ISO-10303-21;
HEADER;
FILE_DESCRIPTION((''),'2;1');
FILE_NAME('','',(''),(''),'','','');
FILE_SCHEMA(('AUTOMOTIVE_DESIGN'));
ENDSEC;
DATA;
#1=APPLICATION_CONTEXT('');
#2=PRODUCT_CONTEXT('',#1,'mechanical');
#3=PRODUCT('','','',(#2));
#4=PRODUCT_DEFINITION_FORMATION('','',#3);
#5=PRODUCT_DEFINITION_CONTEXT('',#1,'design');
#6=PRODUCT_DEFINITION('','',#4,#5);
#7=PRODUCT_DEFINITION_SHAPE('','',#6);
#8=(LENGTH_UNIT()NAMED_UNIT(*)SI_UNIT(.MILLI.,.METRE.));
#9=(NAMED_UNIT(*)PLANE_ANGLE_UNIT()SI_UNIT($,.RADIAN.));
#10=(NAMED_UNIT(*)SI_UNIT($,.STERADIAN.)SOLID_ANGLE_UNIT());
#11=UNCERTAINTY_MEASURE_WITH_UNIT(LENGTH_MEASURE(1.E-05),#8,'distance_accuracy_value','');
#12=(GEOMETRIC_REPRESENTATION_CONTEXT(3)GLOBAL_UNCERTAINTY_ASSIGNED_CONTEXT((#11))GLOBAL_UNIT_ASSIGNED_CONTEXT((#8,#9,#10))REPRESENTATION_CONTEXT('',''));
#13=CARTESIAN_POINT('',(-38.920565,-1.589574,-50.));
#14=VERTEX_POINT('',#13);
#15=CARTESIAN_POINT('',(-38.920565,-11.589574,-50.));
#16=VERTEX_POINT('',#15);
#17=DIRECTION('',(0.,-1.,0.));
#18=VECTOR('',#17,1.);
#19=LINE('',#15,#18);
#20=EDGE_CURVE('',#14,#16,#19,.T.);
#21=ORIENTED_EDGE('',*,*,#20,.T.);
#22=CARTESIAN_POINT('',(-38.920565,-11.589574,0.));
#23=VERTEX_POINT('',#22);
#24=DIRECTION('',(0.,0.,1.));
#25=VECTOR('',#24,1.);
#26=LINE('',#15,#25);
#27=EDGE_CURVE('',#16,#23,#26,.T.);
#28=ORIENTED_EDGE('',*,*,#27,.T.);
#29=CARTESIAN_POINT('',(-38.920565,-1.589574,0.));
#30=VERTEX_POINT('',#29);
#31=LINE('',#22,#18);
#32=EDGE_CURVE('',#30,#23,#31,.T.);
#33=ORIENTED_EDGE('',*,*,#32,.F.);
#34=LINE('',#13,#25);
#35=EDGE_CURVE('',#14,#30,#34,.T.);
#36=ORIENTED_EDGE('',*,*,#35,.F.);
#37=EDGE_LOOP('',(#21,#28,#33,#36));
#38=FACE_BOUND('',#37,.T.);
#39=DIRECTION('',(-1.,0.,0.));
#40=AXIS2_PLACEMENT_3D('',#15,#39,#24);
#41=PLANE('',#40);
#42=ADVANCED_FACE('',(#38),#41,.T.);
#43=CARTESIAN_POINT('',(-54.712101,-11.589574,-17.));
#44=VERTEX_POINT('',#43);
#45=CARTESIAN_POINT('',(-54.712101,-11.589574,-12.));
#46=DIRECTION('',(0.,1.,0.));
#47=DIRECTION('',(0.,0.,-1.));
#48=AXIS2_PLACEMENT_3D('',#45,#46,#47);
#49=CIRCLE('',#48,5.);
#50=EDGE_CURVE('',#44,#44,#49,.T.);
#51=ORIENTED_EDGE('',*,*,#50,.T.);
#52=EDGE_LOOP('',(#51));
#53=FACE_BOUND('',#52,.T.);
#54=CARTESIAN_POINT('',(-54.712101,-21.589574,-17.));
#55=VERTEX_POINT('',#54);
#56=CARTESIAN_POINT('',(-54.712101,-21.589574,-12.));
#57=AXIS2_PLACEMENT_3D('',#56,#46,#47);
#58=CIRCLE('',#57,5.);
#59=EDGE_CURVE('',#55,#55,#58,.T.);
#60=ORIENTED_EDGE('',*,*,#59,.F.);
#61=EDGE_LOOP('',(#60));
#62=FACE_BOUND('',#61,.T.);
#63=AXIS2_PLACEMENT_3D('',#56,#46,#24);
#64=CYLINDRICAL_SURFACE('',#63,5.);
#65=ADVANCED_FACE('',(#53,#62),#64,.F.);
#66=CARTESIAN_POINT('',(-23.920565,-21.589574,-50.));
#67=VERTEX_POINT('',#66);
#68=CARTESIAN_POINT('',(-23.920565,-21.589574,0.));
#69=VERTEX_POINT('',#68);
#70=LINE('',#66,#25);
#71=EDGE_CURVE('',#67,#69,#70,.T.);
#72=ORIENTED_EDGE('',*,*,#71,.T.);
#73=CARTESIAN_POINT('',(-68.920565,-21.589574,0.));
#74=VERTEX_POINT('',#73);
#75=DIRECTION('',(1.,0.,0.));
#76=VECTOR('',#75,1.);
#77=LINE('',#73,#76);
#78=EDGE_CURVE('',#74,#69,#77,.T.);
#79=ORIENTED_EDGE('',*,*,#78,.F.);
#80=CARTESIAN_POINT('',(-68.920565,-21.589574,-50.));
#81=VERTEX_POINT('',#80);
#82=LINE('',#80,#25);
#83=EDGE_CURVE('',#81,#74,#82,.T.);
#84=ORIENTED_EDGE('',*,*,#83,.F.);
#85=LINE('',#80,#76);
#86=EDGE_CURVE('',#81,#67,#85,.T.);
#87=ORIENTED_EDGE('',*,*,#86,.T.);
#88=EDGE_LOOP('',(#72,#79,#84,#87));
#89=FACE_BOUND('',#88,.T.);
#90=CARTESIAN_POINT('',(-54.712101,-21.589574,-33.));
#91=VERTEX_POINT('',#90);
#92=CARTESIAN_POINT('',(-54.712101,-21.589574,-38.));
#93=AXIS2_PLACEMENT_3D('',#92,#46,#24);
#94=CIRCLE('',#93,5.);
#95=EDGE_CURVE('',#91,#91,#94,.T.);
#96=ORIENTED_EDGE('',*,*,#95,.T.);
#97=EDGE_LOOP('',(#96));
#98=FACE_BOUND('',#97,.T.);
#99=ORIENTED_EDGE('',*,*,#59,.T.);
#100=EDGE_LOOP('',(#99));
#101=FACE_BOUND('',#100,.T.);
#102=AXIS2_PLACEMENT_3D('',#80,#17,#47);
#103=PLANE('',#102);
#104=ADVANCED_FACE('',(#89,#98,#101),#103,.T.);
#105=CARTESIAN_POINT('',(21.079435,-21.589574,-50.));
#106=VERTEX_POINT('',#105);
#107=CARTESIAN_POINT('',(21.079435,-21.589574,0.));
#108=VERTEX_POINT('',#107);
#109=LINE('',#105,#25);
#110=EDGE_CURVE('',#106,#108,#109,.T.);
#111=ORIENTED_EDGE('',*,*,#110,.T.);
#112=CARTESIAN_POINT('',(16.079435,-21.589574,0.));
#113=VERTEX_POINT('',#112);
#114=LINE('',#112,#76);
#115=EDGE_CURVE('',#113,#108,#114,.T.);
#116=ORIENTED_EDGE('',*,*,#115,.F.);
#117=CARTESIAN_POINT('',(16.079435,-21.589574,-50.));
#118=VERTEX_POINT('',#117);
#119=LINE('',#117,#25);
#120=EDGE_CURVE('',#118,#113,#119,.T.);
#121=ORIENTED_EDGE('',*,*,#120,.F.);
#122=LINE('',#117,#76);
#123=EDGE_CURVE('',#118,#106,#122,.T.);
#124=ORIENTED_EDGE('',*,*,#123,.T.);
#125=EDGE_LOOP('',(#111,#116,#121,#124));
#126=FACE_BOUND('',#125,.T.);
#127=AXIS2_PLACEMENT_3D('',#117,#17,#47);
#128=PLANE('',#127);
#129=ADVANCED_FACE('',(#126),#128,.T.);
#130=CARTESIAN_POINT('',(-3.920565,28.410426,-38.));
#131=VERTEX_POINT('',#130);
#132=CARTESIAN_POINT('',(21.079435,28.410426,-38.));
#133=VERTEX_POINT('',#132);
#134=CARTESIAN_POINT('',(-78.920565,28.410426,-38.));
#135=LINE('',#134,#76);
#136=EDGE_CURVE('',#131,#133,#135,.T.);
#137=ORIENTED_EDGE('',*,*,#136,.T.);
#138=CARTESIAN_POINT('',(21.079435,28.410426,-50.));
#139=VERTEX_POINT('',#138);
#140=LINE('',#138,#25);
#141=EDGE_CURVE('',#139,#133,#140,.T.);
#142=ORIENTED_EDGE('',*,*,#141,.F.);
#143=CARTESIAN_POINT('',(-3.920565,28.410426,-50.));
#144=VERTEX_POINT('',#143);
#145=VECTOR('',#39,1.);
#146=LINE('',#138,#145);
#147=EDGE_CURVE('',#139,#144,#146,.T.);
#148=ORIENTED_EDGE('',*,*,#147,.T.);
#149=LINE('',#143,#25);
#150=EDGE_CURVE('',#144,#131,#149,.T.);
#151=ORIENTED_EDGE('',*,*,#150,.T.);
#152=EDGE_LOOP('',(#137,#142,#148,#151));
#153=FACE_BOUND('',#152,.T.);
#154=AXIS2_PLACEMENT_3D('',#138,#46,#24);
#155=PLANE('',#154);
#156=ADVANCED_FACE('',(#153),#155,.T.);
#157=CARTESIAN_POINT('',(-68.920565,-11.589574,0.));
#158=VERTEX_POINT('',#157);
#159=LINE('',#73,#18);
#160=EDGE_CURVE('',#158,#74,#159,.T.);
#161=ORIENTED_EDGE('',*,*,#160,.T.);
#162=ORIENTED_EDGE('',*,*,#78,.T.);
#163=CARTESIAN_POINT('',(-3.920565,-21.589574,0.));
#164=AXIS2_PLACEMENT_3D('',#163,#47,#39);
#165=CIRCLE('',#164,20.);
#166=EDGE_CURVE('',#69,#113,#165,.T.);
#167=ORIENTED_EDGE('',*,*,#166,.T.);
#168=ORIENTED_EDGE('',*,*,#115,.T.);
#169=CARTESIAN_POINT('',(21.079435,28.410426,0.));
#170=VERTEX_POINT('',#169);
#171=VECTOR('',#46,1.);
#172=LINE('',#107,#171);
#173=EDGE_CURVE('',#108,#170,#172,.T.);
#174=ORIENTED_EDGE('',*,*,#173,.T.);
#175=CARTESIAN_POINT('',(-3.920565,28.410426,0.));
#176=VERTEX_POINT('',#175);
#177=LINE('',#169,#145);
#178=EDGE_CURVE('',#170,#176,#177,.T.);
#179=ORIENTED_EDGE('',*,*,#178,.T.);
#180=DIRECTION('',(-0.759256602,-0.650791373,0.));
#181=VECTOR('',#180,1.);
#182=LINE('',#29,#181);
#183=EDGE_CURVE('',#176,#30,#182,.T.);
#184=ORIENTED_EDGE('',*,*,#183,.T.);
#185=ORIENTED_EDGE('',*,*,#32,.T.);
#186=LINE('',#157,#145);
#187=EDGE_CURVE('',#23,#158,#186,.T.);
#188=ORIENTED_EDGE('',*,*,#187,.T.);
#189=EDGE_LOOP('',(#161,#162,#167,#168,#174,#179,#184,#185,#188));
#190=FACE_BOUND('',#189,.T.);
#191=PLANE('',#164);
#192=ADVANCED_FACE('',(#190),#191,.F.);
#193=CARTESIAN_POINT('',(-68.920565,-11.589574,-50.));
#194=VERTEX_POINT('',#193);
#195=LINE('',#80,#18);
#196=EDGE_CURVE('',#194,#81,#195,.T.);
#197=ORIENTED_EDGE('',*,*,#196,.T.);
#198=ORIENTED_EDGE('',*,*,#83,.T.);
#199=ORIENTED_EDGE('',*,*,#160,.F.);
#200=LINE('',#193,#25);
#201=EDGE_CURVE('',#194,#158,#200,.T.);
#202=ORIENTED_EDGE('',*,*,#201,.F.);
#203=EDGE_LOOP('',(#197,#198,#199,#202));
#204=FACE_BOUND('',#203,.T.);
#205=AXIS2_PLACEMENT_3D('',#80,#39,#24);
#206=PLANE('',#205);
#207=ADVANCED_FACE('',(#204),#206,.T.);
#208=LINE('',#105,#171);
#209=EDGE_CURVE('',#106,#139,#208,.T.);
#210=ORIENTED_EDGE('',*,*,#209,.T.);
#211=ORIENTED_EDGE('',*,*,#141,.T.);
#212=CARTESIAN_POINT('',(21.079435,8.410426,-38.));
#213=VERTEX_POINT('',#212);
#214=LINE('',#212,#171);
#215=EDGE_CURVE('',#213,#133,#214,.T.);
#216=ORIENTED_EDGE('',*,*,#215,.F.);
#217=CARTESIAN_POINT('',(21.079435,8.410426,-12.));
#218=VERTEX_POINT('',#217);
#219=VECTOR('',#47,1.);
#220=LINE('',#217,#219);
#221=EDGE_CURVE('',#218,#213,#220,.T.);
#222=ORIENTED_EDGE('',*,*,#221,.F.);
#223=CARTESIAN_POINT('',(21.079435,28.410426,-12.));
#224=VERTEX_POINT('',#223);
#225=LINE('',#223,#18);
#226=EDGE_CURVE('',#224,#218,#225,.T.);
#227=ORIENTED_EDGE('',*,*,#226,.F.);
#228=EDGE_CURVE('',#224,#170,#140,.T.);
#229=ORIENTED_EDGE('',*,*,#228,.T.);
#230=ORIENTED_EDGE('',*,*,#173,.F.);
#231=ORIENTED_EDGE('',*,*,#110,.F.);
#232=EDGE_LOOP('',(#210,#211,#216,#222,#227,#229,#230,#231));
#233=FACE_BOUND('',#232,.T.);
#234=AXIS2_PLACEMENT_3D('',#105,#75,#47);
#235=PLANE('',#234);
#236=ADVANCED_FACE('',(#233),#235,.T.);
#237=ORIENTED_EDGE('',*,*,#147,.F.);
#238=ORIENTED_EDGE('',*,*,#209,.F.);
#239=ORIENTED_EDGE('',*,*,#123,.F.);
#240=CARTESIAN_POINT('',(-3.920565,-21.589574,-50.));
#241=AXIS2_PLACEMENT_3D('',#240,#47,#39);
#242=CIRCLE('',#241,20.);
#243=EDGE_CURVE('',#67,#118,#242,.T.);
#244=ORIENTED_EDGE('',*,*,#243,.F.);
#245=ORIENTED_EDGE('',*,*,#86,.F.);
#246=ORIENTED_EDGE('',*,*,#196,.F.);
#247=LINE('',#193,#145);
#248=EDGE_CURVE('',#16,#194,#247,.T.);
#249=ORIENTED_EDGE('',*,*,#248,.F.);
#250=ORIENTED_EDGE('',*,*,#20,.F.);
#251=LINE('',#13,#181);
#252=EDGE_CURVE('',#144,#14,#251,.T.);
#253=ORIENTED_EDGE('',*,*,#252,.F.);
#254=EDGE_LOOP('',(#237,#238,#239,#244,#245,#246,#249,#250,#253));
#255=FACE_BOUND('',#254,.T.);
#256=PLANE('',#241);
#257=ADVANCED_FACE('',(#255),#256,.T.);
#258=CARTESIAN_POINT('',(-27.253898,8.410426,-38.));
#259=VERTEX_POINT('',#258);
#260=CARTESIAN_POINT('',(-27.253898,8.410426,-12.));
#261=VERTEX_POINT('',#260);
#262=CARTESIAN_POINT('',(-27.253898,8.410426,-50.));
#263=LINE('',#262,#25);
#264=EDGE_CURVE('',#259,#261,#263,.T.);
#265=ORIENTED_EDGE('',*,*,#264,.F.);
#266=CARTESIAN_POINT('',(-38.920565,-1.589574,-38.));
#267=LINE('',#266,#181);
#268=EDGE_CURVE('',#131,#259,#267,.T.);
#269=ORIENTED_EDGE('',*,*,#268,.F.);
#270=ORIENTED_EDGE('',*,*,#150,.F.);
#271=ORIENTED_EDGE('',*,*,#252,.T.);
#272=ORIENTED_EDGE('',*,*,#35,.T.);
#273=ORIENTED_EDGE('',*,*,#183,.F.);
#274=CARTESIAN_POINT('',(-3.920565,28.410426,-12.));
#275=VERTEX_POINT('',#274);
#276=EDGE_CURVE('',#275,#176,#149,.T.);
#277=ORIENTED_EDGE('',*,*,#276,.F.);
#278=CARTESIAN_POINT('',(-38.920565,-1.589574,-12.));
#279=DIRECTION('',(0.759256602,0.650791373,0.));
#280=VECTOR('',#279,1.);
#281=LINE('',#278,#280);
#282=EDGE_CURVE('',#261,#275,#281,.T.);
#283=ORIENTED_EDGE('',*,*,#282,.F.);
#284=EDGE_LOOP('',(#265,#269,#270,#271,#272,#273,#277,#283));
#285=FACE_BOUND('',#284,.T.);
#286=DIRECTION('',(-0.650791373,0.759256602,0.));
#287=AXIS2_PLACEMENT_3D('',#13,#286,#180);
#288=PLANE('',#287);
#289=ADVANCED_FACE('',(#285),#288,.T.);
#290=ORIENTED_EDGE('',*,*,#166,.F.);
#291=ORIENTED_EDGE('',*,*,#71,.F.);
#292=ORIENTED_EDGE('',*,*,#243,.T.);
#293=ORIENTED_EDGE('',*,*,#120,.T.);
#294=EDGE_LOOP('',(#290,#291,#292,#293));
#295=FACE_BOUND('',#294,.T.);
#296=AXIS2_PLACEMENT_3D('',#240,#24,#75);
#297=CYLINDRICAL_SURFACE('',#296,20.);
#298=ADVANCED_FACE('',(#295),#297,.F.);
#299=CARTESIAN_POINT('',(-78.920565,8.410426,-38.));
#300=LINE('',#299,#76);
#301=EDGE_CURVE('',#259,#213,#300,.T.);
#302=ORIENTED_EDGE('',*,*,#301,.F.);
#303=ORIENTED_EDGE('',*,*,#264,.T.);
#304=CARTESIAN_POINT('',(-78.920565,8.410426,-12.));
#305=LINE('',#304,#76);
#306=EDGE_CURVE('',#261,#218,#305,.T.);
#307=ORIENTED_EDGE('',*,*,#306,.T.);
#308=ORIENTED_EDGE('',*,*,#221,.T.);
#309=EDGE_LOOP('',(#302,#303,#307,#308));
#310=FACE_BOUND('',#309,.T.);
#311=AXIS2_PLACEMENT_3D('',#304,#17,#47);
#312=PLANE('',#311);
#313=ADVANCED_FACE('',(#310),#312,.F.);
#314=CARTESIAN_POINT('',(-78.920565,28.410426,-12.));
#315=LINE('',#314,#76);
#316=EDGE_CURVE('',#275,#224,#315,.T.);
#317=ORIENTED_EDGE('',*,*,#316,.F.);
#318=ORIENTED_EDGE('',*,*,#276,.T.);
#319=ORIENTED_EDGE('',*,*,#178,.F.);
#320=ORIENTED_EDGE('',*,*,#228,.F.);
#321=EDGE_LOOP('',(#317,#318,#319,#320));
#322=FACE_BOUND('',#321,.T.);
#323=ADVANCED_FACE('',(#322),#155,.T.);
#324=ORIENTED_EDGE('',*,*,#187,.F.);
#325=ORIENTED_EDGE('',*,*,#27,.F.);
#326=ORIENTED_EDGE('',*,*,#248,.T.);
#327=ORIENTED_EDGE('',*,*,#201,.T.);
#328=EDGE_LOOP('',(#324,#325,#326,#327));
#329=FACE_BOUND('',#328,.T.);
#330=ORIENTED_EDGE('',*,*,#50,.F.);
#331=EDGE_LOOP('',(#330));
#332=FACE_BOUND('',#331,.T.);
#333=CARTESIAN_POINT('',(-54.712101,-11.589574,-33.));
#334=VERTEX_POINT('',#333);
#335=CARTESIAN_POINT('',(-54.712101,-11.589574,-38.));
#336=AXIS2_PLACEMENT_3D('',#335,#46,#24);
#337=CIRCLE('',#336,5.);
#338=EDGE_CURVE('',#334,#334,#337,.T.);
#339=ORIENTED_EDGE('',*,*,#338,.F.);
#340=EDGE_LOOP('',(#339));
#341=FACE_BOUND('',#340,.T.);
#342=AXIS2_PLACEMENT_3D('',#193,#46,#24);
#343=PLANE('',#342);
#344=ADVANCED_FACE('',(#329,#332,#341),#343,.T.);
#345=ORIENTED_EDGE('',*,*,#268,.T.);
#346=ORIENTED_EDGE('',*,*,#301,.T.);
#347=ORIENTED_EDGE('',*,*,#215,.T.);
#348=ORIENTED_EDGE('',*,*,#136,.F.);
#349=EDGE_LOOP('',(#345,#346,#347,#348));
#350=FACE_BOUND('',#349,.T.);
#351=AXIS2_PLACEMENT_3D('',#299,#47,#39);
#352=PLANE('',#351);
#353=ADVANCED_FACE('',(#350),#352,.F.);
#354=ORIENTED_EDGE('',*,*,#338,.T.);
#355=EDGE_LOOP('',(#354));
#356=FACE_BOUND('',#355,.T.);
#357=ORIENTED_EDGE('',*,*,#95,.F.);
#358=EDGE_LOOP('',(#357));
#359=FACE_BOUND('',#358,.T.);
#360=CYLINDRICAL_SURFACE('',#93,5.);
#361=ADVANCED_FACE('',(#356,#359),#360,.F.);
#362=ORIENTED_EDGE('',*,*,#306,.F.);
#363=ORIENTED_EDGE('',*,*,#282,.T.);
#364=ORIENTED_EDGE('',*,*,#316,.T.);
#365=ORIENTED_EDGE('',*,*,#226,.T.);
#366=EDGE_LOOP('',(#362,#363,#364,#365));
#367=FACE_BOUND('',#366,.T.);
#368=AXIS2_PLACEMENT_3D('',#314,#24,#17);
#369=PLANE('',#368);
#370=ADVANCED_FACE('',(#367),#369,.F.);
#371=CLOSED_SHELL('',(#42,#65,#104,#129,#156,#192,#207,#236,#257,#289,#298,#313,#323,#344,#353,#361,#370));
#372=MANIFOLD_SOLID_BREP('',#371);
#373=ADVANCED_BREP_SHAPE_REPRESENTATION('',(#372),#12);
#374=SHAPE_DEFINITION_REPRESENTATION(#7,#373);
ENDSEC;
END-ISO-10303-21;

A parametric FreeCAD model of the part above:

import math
import FreeCAD as App
import Part
import Sketcher

V = App.Vector
Q = App.Units.Quantity

doc = App.newDocument("Part")
params = doc.addObject("Spreadsheet::Sheet", "Params")
for row, (alias, value) in enumerate([
    ("sketch1_radius", "20 mm"),
    ("sketch1_width", "45 mm"),
    ("sketch1_width2", "5 mm"),
    ("sketch1_width3", "30 mm"),
    ("sketch1_height", "50 mm"),
    ("pad1_length", "50 mm"),
    ("sketch2_diameter", "10 mm"),
    ("pocket1_length", "10 mm"),
    ("sketch3_width", "20 mm"),
    ("sketch3_height", "26 mm"),
    ("pocket2_length", "100 mm"),
], start=1):
    params.set(f"A{row}", alias)
    params.set(f"B{row}", "=" + value)
    params.setAlias(f"B{row}", alias)

body = doc.addObject("PartDesign::Body", "Body")

sketch1 = body.newObject("Sketcher::SketchObject", "Sketch")
sketch1.AttachmentSupport = (doc.getObject("XY_Plane"), [""])
sketch1.MapMode = "FlatFace"
sketch1.addGeometry(Part.LineSegment(V(-69, -22, 0), V(-24, -22, 0)), False)
sketch1.addGeometry(Part.ArcOfCircle(Part.Circle(V(-4, -22, 0), V(0, 0, 1), 20), math.radians(0), math.radians(180)), False)
sketch1.addGeometry(Part.LineSegment(V(16, -22, 0), V(21, -22, 0)), False)
sketch1.addGeometry(Part.LineSegment(V(21, -22, 0), V(21, 28, 0)), False)
sketch1.addGeometry(Part.LineSegment(V(21, 28, 0), V(-4, 28, 0)), False)
sketch1.addGeometry(Part.LineSegment(V(-4, 28, 0), V(-39, -2, 0)), False)
sketch1.addGeometry(Part.LineSegment(V(-39, -2, 0), V(-39, -12, 0)), False)
sketch1.addGeometry(Part.LineSegment(V(-39, -12, 0), V(-69, -12, 0)), False)
sketch1.addGeometry(Part.LineSegment(V(-69, -12, 0), V(-69, -22, 0)), False)
sketch1.addConstraint(Sketcher.Constraint("Coincident", 0, 2, 1, 2))
sketch1.addConstraint(Sketcher.Constraint("Coincident", 1, 1, 2, 1))
sketch1.addConstraint(Sketcher.Constraint("Coincident", 2, 2, 3, 1))
sketch1.addConstraint(Sketcher.Constraint("Coincident", 3, 2, 4, 1))
sketch1.addConstraint(Sketcher.Constraint("Coincident", 4, 2, 5, 1))
sketch1.addConstraint(Sketcher.Constraint("Coincident", 5, 2, 6, 1))
sketch1.addConstraint(Sketcher.Constraint("Coincident", 6, 2, 7, 1))
sketch1.addConstraint(Sketcher.Constraint("Coincident", 7, 2, 8, 1))
sketch1.addConstraint(Sketcher.Constraint("Coincident", 8, 2, 0, 1))
sketch1.addConstraint(Sketcher.Constraint("Horizontal", 0))
sketch1.addConstraint(Sketcher.Constraint("Horizontal", 2))
sketch1.addConstraint(Sketcher.Constraint("Vertical", 3))
sketch1.addConstraint(Sketcher.Constraint("Horizontal", 4))
sketch1.addConstraint(Sketcher.Constraint("Vertical", 6))
sketch1.addConstraint(Sketcher.Constraint("Horizontal", 7))
sketch1.addConstraint(Sketcher.Constraint("Vertical", 8))
sketch1.addConstraint(Sketcher.Constraint("Horizontal", 1, 3, 0, 2))
sketch1.addConstraint(Sketcher.Constraint("Horizontal", 0, 2, 1, 1))
sketch1.addConstraint(Sketcher.Constraint("Vertical", 1, 3, 4, 2))
sketch1.addConstraint(Sketcher.Constraint("Equal", 6, 8))
sketch1.addConstraint(Sketcher.Constraint("Radius", 1, Q("20 mm")))
sketch1.addConstraint(Sketcher.Constraint("DistanceX", 0, 1, 0, 2, Q("45 mm")))
sketch1.addConstraint(Sketcher.Constraint("DistanceX", 2, 1, 2, 2, Q("5 mm")))
sketch1.addConstraint(Sketcher.Constraint("DistanceX", 7, 2, 7, 1, Q("30 mm")))
sketch1.addConstraint(Sketcher.Constraint("DistanceY", 3, 1, 3, 2, Q("50 mm")))
sketch1.addConstraint(Sketcher.Constraint("DistanceY", 6, 2, 6, 1, Q("10 mm")))
sketch1.addConstraint(Sketcher.Constraint("DistanceX", 1, 3, -1, 1, Q("3.920565 mm")))
sketch1.addConstraint(Sketcher.Constraint("DistanceY", 1, 3, -1, 1, Q("21.589574 mm")))
sketch1.setExpression("Constraints[20]", "Params.sketch1_radius")
sketch1.setExpression("Constraints[21]", "Params.sketch1_width")
sketch1.setExpression("Constraints[22]", "Params.sketch1_width2")
sketch1.setExpression("Constraints[23]", "Params.sketch1_width3")
sketch1.setExpression("Constraints[24]", "Params.sketch1_height")
pad1 = body.newObject("PartDesign::Pad", "Pad")
pad1.Profile = sketch1
pad1.setExpression("Length", "Params.pad1_length")
pad1.Reversed = True

sketch2 = body.newObject("Sketcher::SketchObject", "Sketch001")
sketch2.AttachmentSupport = (doc.getObject("XZ_Plane"), [""])
sketch2.MapMode = "FlatFace"
sketch2.AttachmentOffset = App.Placement(V(0, 0, 11.589574), App.Rotation())
sketch2.addGeometry(Part.Circle(V(-55, -38, 0), V(0, 0, 1), 5), False)
sketch2.addGeometry(Part.Circle(V(-55, -12, 0), V(0, 0, 1), 5), False)
sketch2.addConstraint(Sketcher.Constraint("Equal", 0, 1))
sketch2.addConstraint(Sketcher.Constraint("Vertical", 0, 3, 1, 3))
sketch2.addConstraint(Sketcher.Constraint("Diameter", 0, Q("10 mm")))
sketch2.addConstraint(Sketcher.Constraint("DistanceY", 0, 3, -1, 1, Q("38 mm")))
sketch2.addConstraint(Sketcher.Constraint("DistanceY", 1, 3, -1, 1, Q("12 mm")))
sketch2.addConstraint(Sketcher.Constraint("DistanceX", 0, 3, -1, 1, Q("54.712101 mm")))
sketch2.setExpression("Constraints[2]", "Params.sketch2_diameter")
pocket1 = body.newObject("PartDesign::Pocket", "Pocket")
pocket1.Profile = sketch2
pocket1.setExpression("Length", "Params.pocket1_length")
pocket1.Reversed = True

sketch3 = body.newObject("Sketcher::SketchObject", "Sketch002")
sketch3.AttachmentSupport = (doc.getObject("YZ_Plane"), [""])
sketch3.MapMode = "FlatFace"
sketch3.AttachmentOffset = App.Placement(V(0, 0, 21.079435), App.Rotation())
sketch3.addGeometry(Part.LineSegment(V(28, -12, 0), V(8, -12, 0)), False)
sketch3.addGeometry(Part.LineSegment(V(8, -12, 0), V(8, -38, 0)), False)
sketch3.addGeometry(Part.LineSegment(V(8, -38, 0), V(28, -38, 0)), False)
sketch3.addGeometry(Part.LineSegment(V(28, -38, 0), V(28, -12, 0)), False)
sketch3.addConstraint(Sketcher.Constraint("Coincident", 0, 2, 1, 1))
sketch3.addConstraint(Sketcher.Constraint("Coincident", 1, 2, 2, 1))
sketch3.addConstraint(Sketcher.Constraint("Coincident", 2, 2, 3, 1))
sketch3.addConstraint(Sketcher.Constraint("Coincident", 3, 2, 0, 1))
sketch3.addConstraint(Sketcher.Constraint("Horizontal", 0))
sketch3.addConstraint(Sketcher.Constraint("Vertical", 1))
sketch3.addConstraint(Sketcher.Constraint("Horizontal", 2))
sketch3.addConstraint(Sketcher.Constraint("Vertical", 3))
sketch3.addConstraint(Sketcher.Constraint("DistanceX", 0, 2, 0, 1, Q("20 mm")))
sketch3.addConstraint(Sketcher.Constraint("DistanceY", 1, 2, 1, 1, Q("26 mm")))
sketch3.addConstraint(Sketcher.Constraint("DistanceY", 0, 2, -1, 1, Q("12 mm")))
sketch3.addConstraint(Sketcher.Constraint("DistanceX", -1, 1, 0, 2, Q("8.410426 mm")))
sketch3.setExpression("Constraints[8]", "Params.sketch3_width")
sketch3.setExpression("Constraints[9]", "Params.sketch3_height")
pocket2 = body.newObject("PartDesign::Pocket", "Pocket001")
pocket2.Profile = sketch3
pocket2.setExpression("Length", "Params.pocket2_length")

doc.recompute()
